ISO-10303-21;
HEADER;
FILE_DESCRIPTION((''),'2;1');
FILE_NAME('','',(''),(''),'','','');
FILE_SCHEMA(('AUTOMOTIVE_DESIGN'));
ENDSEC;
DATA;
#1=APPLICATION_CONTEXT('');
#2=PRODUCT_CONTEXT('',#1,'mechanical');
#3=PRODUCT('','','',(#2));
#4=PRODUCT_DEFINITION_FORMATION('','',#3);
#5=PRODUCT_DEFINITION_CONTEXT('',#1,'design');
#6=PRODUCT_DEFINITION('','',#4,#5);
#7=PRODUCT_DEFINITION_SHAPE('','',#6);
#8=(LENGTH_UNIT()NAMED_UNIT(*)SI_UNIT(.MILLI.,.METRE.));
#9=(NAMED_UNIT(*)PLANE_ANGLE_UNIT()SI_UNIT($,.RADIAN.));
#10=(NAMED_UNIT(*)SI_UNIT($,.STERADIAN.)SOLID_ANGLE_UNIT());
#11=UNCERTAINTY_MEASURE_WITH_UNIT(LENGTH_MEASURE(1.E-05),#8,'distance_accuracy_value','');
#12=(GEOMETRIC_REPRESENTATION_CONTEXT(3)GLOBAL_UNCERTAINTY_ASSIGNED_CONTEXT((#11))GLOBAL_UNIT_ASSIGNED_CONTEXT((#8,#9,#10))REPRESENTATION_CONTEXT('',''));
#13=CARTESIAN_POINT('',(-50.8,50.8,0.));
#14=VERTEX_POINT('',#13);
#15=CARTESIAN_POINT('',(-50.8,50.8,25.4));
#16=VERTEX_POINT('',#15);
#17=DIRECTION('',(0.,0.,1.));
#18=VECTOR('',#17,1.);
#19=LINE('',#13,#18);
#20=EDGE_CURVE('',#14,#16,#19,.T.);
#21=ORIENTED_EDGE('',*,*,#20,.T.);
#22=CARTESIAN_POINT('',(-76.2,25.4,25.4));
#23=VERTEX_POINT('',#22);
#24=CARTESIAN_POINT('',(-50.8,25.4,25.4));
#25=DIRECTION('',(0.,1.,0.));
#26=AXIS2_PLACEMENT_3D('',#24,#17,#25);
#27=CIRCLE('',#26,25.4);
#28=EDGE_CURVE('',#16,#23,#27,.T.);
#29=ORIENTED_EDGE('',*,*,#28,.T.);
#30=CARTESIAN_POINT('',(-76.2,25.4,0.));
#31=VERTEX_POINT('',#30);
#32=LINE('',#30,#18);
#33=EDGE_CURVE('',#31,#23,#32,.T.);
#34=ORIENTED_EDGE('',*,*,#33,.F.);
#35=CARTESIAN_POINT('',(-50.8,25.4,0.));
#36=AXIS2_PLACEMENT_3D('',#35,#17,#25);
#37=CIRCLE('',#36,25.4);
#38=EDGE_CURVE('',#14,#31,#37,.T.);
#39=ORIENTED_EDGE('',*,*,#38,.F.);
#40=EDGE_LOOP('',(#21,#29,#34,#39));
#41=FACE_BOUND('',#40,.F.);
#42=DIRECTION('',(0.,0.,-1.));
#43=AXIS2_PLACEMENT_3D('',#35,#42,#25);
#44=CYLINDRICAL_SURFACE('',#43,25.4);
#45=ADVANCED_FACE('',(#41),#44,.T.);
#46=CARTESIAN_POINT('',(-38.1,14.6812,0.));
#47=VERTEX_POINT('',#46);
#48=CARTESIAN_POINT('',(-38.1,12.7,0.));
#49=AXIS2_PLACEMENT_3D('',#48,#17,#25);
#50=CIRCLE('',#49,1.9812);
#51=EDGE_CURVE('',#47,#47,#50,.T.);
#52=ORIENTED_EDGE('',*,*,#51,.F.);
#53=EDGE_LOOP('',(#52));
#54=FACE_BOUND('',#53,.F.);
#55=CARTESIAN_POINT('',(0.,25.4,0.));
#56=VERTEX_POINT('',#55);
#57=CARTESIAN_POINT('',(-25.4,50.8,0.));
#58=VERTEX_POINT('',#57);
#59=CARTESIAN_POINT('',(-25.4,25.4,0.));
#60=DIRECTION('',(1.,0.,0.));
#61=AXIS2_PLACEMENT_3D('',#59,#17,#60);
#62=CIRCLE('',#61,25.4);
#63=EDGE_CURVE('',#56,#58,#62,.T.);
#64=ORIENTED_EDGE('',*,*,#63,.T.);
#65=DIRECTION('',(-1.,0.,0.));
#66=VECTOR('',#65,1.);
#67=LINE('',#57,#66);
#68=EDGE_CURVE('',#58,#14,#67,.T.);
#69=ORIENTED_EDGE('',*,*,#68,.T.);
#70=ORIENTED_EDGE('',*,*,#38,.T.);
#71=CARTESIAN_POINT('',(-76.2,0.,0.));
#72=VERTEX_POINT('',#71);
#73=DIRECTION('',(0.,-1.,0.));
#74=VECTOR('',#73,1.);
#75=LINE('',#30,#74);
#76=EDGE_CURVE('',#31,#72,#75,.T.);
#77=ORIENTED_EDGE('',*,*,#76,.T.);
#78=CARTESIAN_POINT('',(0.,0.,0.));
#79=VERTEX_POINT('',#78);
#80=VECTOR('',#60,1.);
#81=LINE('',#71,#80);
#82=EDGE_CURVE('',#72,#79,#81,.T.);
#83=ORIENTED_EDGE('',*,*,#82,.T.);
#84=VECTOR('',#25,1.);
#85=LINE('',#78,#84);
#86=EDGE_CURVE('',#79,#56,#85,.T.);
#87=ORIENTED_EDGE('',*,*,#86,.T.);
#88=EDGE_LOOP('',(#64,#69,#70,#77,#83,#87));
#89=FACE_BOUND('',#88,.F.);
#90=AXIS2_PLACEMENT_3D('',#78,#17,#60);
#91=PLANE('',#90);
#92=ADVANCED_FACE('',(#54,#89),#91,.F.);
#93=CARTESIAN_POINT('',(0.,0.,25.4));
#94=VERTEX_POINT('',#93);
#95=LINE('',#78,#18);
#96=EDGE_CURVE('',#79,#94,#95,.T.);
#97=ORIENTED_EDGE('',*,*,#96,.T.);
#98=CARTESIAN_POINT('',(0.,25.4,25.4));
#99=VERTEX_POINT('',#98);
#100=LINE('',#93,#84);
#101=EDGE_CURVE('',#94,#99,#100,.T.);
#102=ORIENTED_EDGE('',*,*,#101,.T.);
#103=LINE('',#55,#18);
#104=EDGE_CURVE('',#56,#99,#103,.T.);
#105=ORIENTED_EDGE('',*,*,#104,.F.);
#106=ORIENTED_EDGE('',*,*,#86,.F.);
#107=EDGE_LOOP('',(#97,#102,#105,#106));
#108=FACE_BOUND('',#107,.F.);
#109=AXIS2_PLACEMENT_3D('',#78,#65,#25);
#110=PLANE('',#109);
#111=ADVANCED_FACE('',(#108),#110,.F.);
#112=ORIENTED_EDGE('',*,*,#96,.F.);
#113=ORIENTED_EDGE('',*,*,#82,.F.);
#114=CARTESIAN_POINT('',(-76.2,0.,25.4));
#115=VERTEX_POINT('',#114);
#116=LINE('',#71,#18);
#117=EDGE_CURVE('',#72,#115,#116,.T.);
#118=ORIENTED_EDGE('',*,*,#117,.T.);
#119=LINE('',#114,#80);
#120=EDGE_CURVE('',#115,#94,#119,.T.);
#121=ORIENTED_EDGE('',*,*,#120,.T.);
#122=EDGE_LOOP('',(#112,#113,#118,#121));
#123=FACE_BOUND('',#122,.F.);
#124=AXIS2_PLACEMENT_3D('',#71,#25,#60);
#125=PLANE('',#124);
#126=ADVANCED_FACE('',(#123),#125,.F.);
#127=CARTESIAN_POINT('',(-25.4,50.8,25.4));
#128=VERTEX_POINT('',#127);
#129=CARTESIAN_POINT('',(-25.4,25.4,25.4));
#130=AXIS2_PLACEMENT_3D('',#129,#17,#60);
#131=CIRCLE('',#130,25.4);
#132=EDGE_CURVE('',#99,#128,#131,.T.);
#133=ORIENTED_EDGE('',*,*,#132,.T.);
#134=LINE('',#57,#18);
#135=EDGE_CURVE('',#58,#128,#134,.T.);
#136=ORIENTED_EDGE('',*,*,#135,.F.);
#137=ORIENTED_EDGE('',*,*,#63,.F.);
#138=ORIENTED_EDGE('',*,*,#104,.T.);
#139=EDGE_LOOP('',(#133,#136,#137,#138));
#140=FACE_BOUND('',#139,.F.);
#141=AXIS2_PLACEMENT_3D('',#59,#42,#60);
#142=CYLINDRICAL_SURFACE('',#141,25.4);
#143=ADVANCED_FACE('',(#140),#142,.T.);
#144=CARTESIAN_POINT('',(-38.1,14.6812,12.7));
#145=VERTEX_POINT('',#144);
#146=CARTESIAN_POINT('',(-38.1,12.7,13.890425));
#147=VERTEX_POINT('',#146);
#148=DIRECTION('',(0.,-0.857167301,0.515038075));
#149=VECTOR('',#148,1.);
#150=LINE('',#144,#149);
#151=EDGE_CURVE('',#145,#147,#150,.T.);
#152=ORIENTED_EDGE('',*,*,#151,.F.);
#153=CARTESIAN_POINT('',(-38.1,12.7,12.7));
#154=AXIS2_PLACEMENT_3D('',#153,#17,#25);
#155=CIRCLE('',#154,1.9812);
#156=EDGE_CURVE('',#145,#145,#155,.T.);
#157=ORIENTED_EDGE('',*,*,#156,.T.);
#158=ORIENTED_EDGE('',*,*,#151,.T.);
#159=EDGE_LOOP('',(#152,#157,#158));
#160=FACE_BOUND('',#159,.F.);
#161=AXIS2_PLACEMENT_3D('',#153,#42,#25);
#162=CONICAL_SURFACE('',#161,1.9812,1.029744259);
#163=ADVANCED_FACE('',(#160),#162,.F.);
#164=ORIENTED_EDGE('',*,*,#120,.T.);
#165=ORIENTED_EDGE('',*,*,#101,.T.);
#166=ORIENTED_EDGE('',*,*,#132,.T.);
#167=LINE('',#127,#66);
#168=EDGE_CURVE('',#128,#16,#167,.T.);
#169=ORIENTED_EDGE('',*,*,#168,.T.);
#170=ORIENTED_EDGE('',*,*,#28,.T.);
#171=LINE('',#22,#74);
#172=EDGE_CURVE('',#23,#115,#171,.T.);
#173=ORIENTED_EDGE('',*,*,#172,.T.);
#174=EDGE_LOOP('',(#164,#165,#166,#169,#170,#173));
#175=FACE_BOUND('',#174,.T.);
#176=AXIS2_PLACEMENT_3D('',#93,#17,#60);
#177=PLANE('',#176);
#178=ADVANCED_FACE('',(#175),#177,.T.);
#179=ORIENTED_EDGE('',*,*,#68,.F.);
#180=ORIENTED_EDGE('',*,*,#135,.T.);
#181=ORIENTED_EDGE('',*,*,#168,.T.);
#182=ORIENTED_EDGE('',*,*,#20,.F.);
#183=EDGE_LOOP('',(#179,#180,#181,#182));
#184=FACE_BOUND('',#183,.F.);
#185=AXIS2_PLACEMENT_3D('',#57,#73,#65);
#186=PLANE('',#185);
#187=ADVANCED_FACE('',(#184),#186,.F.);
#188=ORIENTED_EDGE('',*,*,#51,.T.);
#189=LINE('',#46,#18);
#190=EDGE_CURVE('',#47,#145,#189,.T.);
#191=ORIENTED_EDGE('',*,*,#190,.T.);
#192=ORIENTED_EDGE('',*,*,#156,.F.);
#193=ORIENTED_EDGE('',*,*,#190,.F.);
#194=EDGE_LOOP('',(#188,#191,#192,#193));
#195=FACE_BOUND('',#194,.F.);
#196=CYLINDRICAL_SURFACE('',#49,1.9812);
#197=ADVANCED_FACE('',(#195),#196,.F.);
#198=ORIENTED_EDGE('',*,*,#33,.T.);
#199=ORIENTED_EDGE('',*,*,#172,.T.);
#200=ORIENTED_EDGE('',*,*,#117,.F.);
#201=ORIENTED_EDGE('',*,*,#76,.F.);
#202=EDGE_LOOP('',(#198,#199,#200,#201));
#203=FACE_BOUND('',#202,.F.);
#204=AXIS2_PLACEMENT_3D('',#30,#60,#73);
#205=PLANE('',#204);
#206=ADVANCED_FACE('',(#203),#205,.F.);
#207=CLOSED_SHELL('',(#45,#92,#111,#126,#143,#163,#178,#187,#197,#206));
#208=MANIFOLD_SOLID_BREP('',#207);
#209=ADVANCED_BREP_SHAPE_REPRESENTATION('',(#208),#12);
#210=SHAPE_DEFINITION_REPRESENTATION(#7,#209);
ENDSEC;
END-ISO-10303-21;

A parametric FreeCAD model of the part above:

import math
import FreeCAD as App
import Part
import Sketcher

V = App.Vector
Q = App.Units.Quantity

doc = App.newDocument("Part")
body = doc.addObject("PartDesign::Body", "Body")

sketch1 = doc.addObject("Sketcher::SketchObject", "Sketch")
body.addObject(sketch1)
sketch1.AttachmentSupport = (doc.XY_Plane, [""])
sketch1.MapMode = "FlatFace"
sketch1.addGeometry([
    Part.LineSegment(V(-76.2, 0, 0), V(0, 0, 0)),
    Part.LineSegment(V(0, 0, 0), V(0, 25.4, 0)),
    Part.ArcOfCircle(Part.Circle(V(-25.4, 25.4, 0), V(0, 0, 1), 25.4), math.radians(0), math.radians(90)),
    Part.LineSegment(V(-25.4, 50.8, 0), V(-50.8, 50.8, 0)),
    Part.ArcOfCircle(Part.Circle(V(-50.8, 25.4, 0), V(0, 0, 1), 25.4), math.radians(90), math.radians(180)),
    Part.LineSegment(V(-76.2, 25.4, 0), V(-76.2, 0, 0)),
], False)
sketch1.addConstraint([
    Sketcher.Constraint("Coincident", 0, 2, 1, 1),
    Sketcher.Constraint("Tangent", 1, 2, 2, 1),
    Sketcher.Constraint("Tangent", 2, 2, 3, 1),
    Sketcher.Constraint("Tangent", 3, 2, 4, 1),
    Sketcher.Constraint("Tangent", 4, 2, 5, 1),
    Sketcher.Constraint("Coincident", 5, 2, 0, 1),
    Sketcher.Constraint("Horizontal", 0),
    Sketcher.Constraint("Vertical", 1),
    Sketcher.Constraint("Horizontal", 3),
    Sketcher.Constraint("Vertical", 5),
    Sketcher.Constraint("Coincident", 0, 2, -1, 1),
    Sketcher.Constraint("Equal", 2, 4),
    Sketcher.Constraint("Equal", 3, 1),
    Sketcher.Constraint("Radius", 2, Q("1 in")),
    Sketcher.Constraint("DistanceX", 0, 1, 0, 2, Q("3 in")),
])
pad1 = doc.addObject("PartDesign::Pad", "Pad")
body.addObject(pad1)
pad1.Profile = sketch1
pad1.Length = Q("1 in")

sketch2 = doc.addObject("Sketcher::SketchObject", "Sketch001")
body.addObject(sketch2)
sketch2.AttachmentSupport = (doc.XY_Plane, [""])
sketch2.MapMode = "FlatFace"
sketch2.addGeometry(Part.Circle(V(-38.1, 12.7, 0), V(0, 0, 1), 1.9812), False)
sketch2.addConstraint([
    Sketcher.Constraint("Diameter", 0, Q("0.156 in")),
    Sketcher.Constraint("DistanceX", 0, 3, -1, 1, Q("1.5 in")),
    Sketcher.Constraint("DistanceY", -1, 1, 0, 3, Q("0.5 in")),
])
doc.recompute()
hole = doc.addObject("PartDesign::Hole", "Hole")
body.addObject(hole)
hole.Profile = sketch2
hole.ThreadType = "None"
hole.Diameter = Q("0.156 in")
hole.DepthType = "Dimension"
hole.Depth = Q("0.5 in")
hole.DrillPoint = "Angled"
hole.DrillPointAngle = 118
hole.Reversed = True

doc.recompute()
